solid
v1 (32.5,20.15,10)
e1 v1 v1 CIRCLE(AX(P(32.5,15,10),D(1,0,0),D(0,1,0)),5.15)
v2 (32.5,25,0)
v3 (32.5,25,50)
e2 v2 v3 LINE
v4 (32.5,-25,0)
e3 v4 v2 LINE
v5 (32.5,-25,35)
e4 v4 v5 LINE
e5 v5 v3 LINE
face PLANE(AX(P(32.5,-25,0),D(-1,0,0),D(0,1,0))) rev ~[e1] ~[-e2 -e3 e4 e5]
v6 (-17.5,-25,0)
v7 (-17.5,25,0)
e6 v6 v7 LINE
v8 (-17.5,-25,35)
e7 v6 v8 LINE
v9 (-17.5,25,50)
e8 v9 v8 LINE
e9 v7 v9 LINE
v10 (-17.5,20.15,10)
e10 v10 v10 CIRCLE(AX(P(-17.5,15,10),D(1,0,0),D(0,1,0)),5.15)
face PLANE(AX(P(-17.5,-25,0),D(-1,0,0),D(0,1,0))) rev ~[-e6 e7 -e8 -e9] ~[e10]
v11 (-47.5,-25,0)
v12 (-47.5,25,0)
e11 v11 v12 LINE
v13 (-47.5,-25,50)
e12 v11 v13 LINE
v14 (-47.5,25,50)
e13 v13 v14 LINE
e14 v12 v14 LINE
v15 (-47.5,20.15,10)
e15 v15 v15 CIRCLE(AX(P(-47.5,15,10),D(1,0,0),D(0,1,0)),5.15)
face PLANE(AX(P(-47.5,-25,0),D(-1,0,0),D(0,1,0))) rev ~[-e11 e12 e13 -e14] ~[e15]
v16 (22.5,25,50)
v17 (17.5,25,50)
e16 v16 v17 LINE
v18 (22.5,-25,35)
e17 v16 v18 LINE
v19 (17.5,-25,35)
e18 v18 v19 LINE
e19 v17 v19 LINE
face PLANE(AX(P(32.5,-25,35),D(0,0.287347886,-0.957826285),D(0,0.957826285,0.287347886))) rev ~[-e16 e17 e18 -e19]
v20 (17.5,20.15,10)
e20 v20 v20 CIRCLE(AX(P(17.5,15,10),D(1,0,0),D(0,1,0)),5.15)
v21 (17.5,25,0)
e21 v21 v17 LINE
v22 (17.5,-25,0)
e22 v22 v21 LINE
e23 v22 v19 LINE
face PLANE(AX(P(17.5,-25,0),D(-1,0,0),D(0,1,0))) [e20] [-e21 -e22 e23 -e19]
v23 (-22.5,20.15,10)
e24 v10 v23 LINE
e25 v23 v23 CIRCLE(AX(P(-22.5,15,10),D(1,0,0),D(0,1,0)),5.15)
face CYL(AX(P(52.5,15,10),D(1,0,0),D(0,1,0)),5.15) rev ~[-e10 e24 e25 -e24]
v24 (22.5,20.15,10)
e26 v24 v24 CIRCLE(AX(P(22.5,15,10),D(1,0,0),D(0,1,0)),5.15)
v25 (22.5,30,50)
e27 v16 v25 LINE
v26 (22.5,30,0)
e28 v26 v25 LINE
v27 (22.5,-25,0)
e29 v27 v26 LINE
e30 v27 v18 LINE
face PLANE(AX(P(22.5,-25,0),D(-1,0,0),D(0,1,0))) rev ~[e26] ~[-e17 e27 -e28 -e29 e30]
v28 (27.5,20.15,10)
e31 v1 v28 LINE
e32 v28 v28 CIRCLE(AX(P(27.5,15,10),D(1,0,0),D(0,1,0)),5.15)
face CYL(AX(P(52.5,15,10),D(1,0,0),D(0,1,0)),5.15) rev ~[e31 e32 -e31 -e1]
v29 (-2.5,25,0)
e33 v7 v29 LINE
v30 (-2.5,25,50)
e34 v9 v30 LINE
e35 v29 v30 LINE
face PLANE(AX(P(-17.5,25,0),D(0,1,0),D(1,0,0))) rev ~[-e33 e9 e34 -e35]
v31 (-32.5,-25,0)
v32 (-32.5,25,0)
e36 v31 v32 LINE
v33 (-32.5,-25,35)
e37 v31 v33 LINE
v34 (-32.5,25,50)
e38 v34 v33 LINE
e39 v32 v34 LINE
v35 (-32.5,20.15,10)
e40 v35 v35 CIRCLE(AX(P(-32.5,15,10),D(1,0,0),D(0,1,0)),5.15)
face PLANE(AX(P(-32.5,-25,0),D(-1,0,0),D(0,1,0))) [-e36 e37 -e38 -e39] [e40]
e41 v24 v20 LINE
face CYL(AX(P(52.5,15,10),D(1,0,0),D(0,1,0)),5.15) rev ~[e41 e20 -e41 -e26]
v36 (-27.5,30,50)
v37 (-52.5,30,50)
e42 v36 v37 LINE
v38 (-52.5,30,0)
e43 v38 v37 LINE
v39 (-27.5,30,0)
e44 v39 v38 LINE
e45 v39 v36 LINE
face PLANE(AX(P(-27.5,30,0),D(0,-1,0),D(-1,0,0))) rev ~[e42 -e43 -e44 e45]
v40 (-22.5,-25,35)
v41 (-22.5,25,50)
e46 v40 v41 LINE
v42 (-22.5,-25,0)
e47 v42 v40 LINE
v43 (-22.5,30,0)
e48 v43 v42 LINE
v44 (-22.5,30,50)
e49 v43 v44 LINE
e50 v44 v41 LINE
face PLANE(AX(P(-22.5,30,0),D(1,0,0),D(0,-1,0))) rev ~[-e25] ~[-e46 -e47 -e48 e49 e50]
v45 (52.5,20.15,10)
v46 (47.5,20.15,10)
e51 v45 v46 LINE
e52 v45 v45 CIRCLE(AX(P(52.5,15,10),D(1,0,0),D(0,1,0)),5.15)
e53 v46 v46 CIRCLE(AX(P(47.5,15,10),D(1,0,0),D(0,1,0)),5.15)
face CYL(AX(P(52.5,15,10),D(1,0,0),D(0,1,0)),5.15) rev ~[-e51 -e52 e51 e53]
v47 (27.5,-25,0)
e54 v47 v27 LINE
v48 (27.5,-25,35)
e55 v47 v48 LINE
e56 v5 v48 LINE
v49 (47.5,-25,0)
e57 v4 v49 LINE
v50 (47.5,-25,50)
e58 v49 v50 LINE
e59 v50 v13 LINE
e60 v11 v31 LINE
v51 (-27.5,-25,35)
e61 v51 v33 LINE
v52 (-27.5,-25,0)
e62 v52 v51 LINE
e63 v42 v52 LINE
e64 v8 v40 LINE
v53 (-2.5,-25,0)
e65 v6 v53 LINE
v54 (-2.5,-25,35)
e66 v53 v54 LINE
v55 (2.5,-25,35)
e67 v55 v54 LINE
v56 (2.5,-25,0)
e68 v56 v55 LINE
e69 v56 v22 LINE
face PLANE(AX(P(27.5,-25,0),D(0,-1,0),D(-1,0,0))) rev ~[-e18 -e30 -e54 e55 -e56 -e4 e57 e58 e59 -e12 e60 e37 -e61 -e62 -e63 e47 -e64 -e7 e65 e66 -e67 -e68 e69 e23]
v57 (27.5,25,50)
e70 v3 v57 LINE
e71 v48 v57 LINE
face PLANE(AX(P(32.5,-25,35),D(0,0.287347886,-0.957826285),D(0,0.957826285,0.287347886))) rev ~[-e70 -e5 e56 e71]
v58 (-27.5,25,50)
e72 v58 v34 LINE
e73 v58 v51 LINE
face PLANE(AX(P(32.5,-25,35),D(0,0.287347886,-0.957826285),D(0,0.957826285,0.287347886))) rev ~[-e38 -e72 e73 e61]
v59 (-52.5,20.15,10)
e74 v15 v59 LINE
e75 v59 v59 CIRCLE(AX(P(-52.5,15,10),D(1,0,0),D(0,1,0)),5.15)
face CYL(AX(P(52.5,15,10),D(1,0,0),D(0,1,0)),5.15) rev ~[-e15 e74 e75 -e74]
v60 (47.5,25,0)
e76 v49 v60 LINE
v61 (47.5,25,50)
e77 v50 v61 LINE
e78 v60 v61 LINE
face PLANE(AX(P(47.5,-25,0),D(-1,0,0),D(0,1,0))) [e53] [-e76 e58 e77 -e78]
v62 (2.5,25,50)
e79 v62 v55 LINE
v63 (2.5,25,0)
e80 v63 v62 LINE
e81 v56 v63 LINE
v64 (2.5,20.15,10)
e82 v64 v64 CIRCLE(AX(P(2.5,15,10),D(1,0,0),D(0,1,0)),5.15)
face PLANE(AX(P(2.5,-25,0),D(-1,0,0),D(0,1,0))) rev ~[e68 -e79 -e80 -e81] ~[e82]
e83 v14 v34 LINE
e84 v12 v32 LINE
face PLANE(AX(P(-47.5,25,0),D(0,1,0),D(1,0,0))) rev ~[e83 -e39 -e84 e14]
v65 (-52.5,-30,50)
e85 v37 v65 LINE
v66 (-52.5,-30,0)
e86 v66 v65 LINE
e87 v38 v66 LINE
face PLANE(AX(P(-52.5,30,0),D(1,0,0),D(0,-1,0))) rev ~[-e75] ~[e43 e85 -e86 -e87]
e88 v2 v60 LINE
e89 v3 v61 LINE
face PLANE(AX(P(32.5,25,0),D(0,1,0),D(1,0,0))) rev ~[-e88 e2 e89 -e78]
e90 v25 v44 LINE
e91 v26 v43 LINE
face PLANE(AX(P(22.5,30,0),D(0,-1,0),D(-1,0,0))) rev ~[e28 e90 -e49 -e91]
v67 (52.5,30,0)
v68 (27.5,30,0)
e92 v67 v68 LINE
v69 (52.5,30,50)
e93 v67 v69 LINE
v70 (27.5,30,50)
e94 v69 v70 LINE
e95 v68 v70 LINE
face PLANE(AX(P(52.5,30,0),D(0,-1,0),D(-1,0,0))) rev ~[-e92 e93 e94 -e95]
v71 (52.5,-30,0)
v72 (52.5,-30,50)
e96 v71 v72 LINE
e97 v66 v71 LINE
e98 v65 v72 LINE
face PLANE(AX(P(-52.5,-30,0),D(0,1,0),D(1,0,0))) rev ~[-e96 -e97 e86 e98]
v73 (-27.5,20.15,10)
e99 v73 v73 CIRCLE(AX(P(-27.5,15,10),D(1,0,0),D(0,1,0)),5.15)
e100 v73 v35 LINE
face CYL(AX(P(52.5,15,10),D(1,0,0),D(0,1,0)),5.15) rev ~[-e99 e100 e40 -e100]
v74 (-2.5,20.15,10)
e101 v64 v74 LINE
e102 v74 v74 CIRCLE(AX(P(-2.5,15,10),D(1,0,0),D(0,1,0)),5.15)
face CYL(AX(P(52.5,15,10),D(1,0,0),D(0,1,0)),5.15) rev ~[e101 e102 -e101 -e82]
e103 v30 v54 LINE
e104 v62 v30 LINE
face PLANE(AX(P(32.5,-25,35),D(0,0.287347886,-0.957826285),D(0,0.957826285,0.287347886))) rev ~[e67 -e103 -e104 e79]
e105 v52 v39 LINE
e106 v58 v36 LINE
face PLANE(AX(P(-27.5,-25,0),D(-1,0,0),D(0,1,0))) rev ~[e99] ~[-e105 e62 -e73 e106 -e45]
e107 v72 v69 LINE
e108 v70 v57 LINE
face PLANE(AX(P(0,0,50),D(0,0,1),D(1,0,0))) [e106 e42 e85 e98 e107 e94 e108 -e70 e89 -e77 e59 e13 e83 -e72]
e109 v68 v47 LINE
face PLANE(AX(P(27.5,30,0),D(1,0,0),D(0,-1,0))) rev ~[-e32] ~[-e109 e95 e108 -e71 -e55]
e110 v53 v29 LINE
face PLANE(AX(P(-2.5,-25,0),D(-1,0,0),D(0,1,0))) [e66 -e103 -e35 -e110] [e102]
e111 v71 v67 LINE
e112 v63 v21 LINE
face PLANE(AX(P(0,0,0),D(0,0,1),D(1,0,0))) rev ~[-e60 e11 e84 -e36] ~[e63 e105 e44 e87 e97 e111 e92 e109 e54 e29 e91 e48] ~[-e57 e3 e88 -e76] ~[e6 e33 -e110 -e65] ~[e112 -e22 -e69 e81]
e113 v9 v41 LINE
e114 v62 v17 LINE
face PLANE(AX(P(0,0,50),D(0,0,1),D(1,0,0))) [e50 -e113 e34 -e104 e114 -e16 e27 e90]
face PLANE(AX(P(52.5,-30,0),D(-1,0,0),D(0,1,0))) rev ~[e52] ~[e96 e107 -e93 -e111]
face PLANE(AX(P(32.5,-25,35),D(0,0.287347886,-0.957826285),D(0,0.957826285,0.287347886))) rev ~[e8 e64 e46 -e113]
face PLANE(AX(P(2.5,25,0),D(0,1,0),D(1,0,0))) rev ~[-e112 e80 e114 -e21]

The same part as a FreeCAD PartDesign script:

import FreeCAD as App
import Part
import Sketcher
from FreeCAD import Vector
Q = App.Units.Quantity

doc = App.newDocument("Part")
body = doc.addObject("PartDesign::Body", "Body")

# Sketch on XY plane
sketch1 = body.newObject("Sketcher::SketchObject", "Sketch")
sketch1.AttachmentSupport = (doc.getObject("XY_Plane"), [""])
sketch1.MapMode = "FlatFace"
sketch1.addGeometry([
    Part.LineSegment(Vector(52, -30, 0), Vector(52, 30, 0)),  # 0
    Part.LineSegment(Vector(52, 30, 0), Vector(28, 30, 0)),  # 1
    Part.LineSegment(Vector(28, 30, 0), Vector(28, -25, 0)),  # 2
    Part.LineSegment(Vector(28, -25, 0), Vector(22, -25, 0)),  # 3
    Part.LineSegment(Vector(22, -25, 0), Vector(22, 30, 0)),  # 4
    Part.LineSegment(Vector(22, 30, 0), Vector(-22, 30, 0)),  # 5
    Part.LineSegment(Vector(-22, 30, 0), Vector(-22, -25, 0)),  # 6
    Part.LineSegment(Vector(-22, -25, 0), Vector(-28, -25, 0)),  # 7
    Part.LineSegment(Vector(-28, -25, 0), Vector(-28, 30, 0)),  # 8
    Part.LineSegment(Vector(-28, 30, 0), Vector(-52, 30, 0)),  # 9
    Part.LineSegment(Vector(-52, 30, 0), Vector(-52, -30, 0)),  # 10
    Part.LineSegment(Vector(-52, -30, 0), Vector(52, -30, 0)),  # 11
    Part.LineSegment(Vector(-32, -25, 0), Vector(-48, -25, 0)),  # 12
    Part.LineSegment(Vector(-48, -25, 0), Vector(-48, 25, 0)),  # 13
    Part.LineSegment(Vector(-48, 25, 0), Vector(-32, 25, 0)),  # 14
    Part.LineSegment(Vector(-32, 25, 0), Vector(-32, -25, 0)),  # 15
    Part.LineSegment(Vector(-2, -25, 0), Vector(-18, -25, 0)),  # 16
    Part.LineSegment(Vector(-18, -25, 0), Vector(-18, 25, 0)),  # 17
    Part.LineSegment(Vector(-18, 25, 0), Vector(-2, 25, 0)),  # 18
    Part.LineSegment(Vector(-2, 25, 0), Vector(-2, -25, 0)),  # 19
    Part.LineSegment(Vector(18, -25, 0), Vector(2, -25, 0)),  # 20
    Part.LineSegment(Vector(2, -25, 0), Vector(2, 25, 0)),  # 21
    Part.LineSegment(Vector(2, 25, 0), Vector(18, 25, 0)),  # 22
    Part.LineSegment(Vector(18, 25, 0), Vector(18, -25, 0)),  # 23
    Part.LineSegment(Vector(48, -25, 0), Vector(32, -25, 0)),  # 24
    Part.LineSegment(Vector(32, -25, 0), Vector(32, 25, 0)),  # 25
    Part.LineSegment(Vector(32, 25, 0), Vector(48, 25, 0)),  # 26
    Part.LineSegment(Vector(48, 25, 0), Vector(48, -25, 0)),  # 27
], False)
sketch1.addConstraint([
    Sketcher.Constraint("Coincident", 0, 2, 1, 1),
    Sketcher.Constraint("Coincident", 1, 2, 2, 1),
    Sketcher.Constraint("Coincident", 2, 2, 3, 1),
    Sketcher.Constraint("Coincident", 3, 2, 4, 1),
    Sketcher.Constraint("Coincident", 4, 2, 5, 1),
    Sketcher.Constraint("Coincident", 5, 2, 6, 1),
    Sketcher.Constraint("Coincident", 6, 2, 7, 1),
    Sketcher.Constraint("Coincident", 7, 2, 8, 1),
    Sketcher.Constraint("Coincident", 8, 2, 9, 1),
    Sketcher.Constraint("Coincident", 9, 2, 10, 1),
    Sketcher.Constraint("Coincident", 10, 2, 11, 1),
    Sketcher.Constraint("Coincident", 11, 2, 0, 1),
    Sketcher.Constraint("Coincident", 12, 2, 13, 1),
    Sketcher.Constraint("Coincident", 13, 2, 14, 1),
    Sketcher.Constraint("Coincident", 14, 2, 15, 1),
    Sketcher.Constraint("Coincident", 15, 2, 12, 1),
    Sketcher.Constraint("Coincident", 16, 2, 17, 1),
    Sketcher.Constraint("Coincident", 17, 2, 18, 1),
    Sketcher.Constraint("Coincident", 18, 2, 19, 1),
    Sketcher.Constraint("Coincident", 19, 2, 16, 1),
    Sketcher.Constraint("Coincident", 20, 2, 21, 1),
    Sketcher.Constraint("Coincident", 21, 2, 22, 1),
    Sketcher.Constraint("Coincident", 22, 2, 23, 1),
    Sketcher.Constraint("Coincident", 23, 2, 20, 1),
    Sketcher.Constraint("Coincident", 24, 2, 25, 1),
    Sketcher.Constraint("Coincident", 25, 2, 26, 1),
    Sketcher.Constraint("Coincident", 26, 2, 27, 1),
    Sketcher.Constraint("Coincident", 27, 2, 24, 1),
    Sketcher.Constraint("Vertical", 0),
    Sketcher.Constraint("Horizontal", 1),
    Sketcher.Constraint("Vertical", 2),
    Sketcher.Constraint("Horizontal", 3),
    Sketcher.Constraint("Vertical", 4),
    Sketcher.Constraint("Horizontal", 5),
    Sketcher.Constraint("Vertical", 6),
    Sketcher.Constraint("Horizontal", 7),
    Sketcher.Constraint("Vertical", 8),
    Sketcher.Constraint("Horizontal", 9),
    Sketcher.Constraint("Vertical", 10),
    Sketcher.Constraint("Horizontal", 11),
    Sketcher.Constraint("Horizontal", 12),
    Sketcher.Constraint("Vertical", 13),
    Sketcher.Constraint("Horizontal", 14),
    Sketcher.Constraint("Vertical", 15),
    Sketcher.Constraint("Horizontal", 16),
    Sketcher.Constraint("Vertical", 17),
    Sketcher.Constraint("Horizontal", 18),
    Sketcher.Constraint("Vertical", 19),
    Sketcher.Constraint("Horizontal", 20),
    Sketcher.Constraint("Vertical", 21),
    Sketcher.Constraint("Horizontal", 22),
    Sketcher.Constraint("Vertical", 23),
    Sketcher.Constraint("Horizontal", 24),
    Sketcher.Constraint("Vertical", 25),
    Sketcher.Constraint("Horizontal", 26),
    Sketcher.Constraint("Vertical", 27),
    Sketcher.Constraint("Symmetric", 0, 2, 10, 2, -1, 1),
    Sketcher.Constraint("Symmetric", 18, 2, 20, 2, -1, 1),
    Sketcher.Constraint("Symmetric", 16, 2, 22, 2, -1, 1),
    Sketcher.Constraint("Symmetric", 14, 2, 24, 2, -1, 1),
    Sketcher.Constraint("Symmetric", 12, 2, 26, 2, -1, 1),
    Sketcher.Constraint("Symmetric", 3, 2, 6, 2, -2),
    Sketcher.Constraint("Symmetric", 1, 2, 8, 2, -2),
    Sketcher.Constraint("Horizontal", 1, 2, 4, 2),
    Sketcher.Constraint("Horizontal", 7, 2, 12, 2),
    Sketcher.Constraint("Horizontal", 15, 2, 16, 2),
    Sketcher.Constraint("Horizontal", 14, 2, 17, 2),
    Sketcher.Constraint("Horizontal", 19, 2, 20, 2),
    Sketcher.Constraint("Equal", 14, 16),
    Sketcher.Constraint("DistanceX", 1, 2, 1, 1, Q("25 mm")),
    Sketcher.Constraint("DistanceX", 3, 2, 3, 1, Q("5 mm")),
    Sketcher.Constraint("DistanceX", 5, 2, 5, 1, Q("45 mm")),
    Sketcher.Constraint("DistanceX", 12, 2, 12, 1, Q("15 mm")),
    Sketcher.Constraint("DistanceY", 0, 1, 0, 2, Q("60 mm")),
    Sketcher.Constraint("DistanceY", 2, 2, 2, 1, Q("55 mm")),
    Sketcher.Constraint("DistanceX", 10, 2, 12, 2, Q("5 mm")),
    Sketcher.Constraint("DistanceX", 6, 2, 16, 2, Q("5 mm")),
])
pad1 = body.newObject("PartDesign::Pad", "Pad")
pad1.Profile = sketch1
pad1.Length = 50

# Sketch on YZ plane
sketch2 = body.newObject("Sketcher::SketchObject", "Sketch001")
sketch2.AttachmentSupport = (doc.getObject("YZ_Plane"), [""])
sketch2.MapMode = "FlatFace"
sketch2.AttachmentOffset = App.Placement(Vector(0, 0, 52.5), App.Rotation())
sketch2.addGeometry(Part.Circle(Vector(15, 10, 0), Vector(0, 0, 1), 5), False)
sketch2.addConstraint([
    Sketcher.Constraint("Diameter", 0, Q("10.3 mm")),
    Sketcher.Constraint("DistanceX", -1, 1, 0, 3, Q("15 mm")),
    Sketcher.Constraint("DistanceY", -1, 1, 0, 3, Q("10 mm")),
])
pocket1 = body.newObject("PartDesign::Pocket", "Pocket")
pocket1.Profile = sketch2
pocket1.Type = "ThroughAll"

# Sketch on YZ plane
sketch3 = body.newObject("Sketcher::SketchObject", "Sketch002")
sketch3.AttachmentSupport = (doc.getObject("YZ_Plane"), [""])
sketch3.MapMode = "FlatFace"
sketch3.AttachmentOffset = App.Placement(Vector(0, 0, 32.5), App.Rotation())
sketch3.addGeometry([
    Part.LineSegment(Vector(-25, 35, 0), Vector(25, 50, 0)),
    Part.LineSegment(Vector(25, 50, 0), Vector(-25, 50, 0)),
    Part.LineSegment(Vector(-25, 50, 0), Vector(-25, 35, 0)),
], False)
sketch3.addConstraint([
    Sketcher.Constraint("Coincident", 0, 2, 1, 1),
    Sketcher.Constraint("Coincident", 1, 2, 2, 1),
    Sketcher.Constraint("Coincident", 2, 2, 0, 1),
    Sketcher.Constraint("Horizontal", 1),
    Sketcher.Constraint("Vertical", 2),
    Sketcher.Constraint("DistanceX", 1, 2, 1, 1, Q("50 mm")),
    Sketcher.Constraint("DistanceY", 2, 2, 2, 1, Q("15 mm")),
    Sketcher.Constraint("DistanceX", -1, 1, 0, 2, Q("25 mm")),
    Sketcher.Constraint("DistanceY", -1, 1, 0, 2, Q("50 mm")),
])
pocket2 = body.newObject("PartDesign::Pocket", "Pocket001")
pocket2.Profile = sketch3
pocket2.Length = 75

doc.recompute()
